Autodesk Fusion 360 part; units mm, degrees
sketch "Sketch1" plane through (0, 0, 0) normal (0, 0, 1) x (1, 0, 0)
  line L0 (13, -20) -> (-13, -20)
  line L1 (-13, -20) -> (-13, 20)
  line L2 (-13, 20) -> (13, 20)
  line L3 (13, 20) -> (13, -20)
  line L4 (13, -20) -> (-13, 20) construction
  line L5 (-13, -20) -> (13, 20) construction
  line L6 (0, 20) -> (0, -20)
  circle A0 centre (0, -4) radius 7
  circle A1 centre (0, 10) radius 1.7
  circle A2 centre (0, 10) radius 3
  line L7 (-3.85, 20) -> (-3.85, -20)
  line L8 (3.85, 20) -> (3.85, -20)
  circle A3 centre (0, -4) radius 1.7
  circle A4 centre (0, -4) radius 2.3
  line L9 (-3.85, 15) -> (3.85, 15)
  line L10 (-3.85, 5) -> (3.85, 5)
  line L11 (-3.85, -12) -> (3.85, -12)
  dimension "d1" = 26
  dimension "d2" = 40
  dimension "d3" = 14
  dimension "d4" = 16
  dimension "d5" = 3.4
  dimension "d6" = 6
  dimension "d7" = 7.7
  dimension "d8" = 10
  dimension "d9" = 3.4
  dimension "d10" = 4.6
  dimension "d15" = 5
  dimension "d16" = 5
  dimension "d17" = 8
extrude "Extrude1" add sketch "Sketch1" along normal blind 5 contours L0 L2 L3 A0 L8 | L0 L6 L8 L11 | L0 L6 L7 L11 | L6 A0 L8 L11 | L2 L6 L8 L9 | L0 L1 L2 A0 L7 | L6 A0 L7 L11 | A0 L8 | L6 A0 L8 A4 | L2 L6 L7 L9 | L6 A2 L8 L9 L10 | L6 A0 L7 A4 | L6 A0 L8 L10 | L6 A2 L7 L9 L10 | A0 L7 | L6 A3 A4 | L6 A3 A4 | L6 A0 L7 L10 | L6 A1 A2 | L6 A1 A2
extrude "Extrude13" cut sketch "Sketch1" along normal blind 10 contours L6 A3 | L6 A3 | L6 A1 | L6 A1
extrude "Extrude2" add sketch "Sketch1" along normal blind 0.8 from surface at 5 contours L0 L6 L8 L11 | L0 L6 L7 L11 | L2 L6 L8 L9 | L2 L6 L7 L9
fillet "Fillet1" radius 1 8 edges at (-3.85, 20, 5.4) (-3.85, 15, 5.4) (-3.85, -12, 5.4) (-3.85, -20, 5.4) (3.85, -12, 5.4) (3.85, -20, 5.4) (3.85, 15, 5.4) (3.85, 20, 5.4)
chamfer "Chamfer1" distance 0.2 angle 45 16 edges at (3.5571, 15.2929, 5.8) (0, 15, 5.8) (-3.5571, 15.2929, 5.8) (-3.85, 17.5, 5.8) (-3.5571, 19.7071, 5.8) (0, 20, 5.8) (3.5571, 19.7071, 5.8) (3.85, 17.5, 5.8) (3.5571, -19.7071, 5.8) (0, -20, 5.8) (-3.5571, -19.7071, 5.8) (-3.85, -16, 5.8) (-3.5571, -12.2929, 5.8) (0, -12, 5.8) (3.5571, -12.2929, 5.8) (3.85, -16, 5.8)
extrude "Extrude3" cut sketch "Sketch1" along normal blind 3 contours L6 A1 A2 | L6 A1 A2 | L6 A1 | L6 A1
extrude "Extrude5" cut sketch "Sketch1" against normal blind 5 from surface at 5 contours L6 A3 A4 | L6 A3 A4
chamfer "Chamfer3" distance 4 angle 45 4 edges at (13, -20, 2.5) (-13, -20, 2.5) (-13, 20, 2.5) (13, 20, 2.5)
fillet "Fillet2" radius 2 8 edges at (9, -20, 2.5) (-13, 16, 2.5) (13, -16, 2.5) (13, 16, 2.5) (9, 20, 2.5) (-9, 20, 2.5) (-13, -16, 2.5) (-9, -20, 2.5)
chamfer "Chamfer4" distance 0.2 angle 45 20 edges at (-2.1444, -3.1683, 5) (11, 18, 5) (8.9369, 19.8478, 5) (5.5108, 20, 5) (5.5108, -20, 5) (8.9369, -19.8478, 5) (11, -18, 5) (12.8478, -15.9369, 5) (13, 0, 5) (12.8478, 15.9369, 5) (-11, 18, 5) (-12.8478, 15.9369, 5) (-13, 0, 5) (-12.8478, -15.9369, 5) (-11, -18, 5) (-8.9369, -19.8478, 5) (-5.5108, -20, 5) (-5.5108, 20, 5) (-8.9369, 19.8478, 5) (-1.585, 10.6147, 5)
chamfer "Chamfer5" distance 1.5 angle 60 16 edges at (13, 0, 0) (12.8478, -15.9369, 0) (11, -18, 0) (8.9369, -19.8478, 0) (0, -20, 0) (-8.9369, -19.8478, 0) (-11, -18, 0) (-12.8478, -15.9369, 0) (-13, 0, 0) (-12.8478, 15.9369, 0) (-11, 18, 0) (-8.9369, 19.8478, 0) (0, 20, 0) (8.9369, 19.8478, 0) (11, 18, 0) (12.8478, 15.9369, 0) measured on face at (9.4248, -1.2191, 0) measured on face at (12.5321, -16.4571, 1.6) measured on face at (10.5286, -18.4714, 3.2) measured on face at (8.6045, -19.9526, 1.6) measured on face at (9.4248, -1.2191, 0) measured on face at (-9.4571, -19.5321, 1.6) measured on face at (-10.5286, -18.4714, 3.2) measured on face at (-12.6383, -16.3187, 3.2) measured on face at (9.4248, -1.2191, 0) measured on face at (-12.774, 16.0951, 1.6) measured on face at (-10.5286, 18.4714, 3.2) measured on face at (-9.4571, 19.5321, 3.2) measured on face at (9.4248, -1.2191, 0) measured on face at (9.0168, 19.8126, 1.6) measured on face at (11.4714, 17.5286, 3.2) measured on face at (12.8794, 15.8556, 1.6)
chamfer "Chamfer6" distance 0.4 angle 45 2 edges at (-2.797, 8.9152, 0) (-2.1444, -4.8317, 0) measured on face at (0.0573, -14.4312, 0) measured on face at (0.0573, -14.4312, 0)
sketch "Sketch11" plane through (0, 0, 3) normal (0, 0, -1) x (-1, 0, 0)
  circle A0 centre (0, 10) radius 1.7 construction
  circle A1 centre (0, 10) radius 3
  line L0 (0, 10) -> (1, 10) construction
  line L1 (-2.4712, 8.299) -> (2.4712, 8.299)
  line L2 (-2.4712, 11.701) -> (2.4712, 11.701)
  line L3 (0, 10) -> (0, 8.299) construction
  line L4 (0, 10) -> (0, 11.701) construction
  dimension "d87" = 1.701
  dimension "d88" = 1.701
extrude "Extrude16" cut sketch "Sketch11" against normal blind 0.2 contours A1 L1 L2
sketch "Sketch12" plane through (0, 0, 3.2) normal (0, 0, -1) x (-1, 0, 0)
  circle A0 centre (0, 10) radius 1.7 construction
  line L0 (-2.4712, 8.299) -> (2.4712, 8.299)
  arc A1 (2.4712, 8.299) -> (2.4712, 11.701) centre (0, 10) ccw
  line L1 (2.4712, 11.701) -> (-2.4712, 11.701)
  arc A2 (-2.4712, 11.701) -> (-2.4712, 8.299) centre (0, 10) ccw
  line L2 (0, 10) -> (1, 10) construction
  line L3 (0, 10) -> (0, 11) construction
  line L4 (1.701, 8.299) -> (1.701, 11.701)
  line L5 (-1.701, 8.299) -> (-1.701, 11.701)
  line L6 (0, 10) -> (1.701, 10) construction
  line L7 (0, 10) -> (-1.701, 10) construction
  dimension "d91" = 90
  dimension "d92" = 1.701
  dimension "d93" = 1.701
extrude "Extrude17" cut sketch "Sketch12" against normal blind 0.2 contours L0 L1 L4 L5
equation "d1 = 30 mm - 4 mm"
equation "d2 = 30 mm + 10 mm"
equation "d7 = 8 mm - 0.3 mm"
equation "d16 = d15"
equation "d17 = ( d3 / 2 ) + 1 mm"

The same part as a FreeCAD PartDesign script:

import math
import FreeCAD as App
import Part
import Sketcher

V = App.Vector
Q = App.Units.Quantity


def edges_at(feature, points):
    """Names of the edges that pass closest to the given points."""
    edges = feature.Shape.Edges
    near = lambda p: min(range(len(edges)), key=lambda i: edges[i].distToShape(Part.Vertex(*p))[0])
    return sorted({f"Edge{near(p) + 1}" for p in points})

doc = App.newDocument("Part")
body = doc.addObject("PartDesign::Body", "Body")

sketch1 = body.newObject("Sketcher::SketchObject", "Sketch")
sketch1.AttachmentSupport = (doc.getObject("XY_Plane"), [""])
sketch1.MapMode = "FlatFace"
sketch1.addGeometry(Part.LineSegment(V(13, -20, 0), V(13, 20, 0)), False)
sketch1.addGeometry(Part.LineSegment(V(13, 20, 0), V(-13, 20, 0)), False)
sketch1.addGeometry(Part.LineSegment(V(-13, 20, 0), V(-13, -20, 0)), False)
sketch1.addGeometry(Part.LineSegment(V(-13, -20, 0), V(13, -20, 0)), False)
sketch1.addGeometry(Part.Circle(V(0, 10, 0), V(0, 0, 1), 1.7), False)
sketch1.addGeometry(Part.Circle(V(0, -4, 0), V(0, 0, 1), 1.7), False)
sketch1.addConstraint(Sketcher.Constraint("Coincident", 0, 2, 1, 1))
sketch1.addConstraint(Sketcher.Constraint("Coincident", 1, 2, 2, 1))
sketch1.addConstraint(Sketcher.Constraint("Coincident", 2, 2, 3, 1))
sketch1.addConstraint(Sketcher.Constraint("Coincident", 3, 2, 0, 1))
sketch1.addConstraint(Sketcher.Constraint("Vertical", 0))
sketch1.addConstraint(Sketcher.Constraint("Horizontal", 1))
sketch1.addConstraint(Sketcher.Constraint("Vertical", 2))
sketch1.addConstraint(Sketcher.Constraint("Horizontal", 3))
sketch1.addConstraint(Sketcher.Constraint("Equal", 4, 5))
sketch1.addConstraint(Sketcher.Constraint("Symmetric", 0, 2, 2, 2, -1, 1))
sketch1.addConstraint(Sketcher.Constraint("PointOnObject", 4, 3, -2))
sketch1.addConstraint(Sketcher.Constraint("PointOnObject", 5, 3, -2))
sketch1.addConstraint(Sketcher.Constraint("Diameter", 4, Q("3.4 mm")))
sketch1.addConstraint(Sketcher.Constraint("DistanceX", 1, 2, 1, 1, Q("26 mm")))
sketch1.addConstraint(Sketcher.Constraint("DistanceY", 0, 1, 0, 2, Q("40 mm")))
sketch1.addConstraint(Sketcher.Constraint("DistanceY", -1, 1, 4, 3, Q("10 mm")))
sketch1.addConstraint(Sketcher.Constraint("DistanceY", 5, 3, 4, 3, Q("14 mm")))
pad1 = body.newObject("PartDesign::Pad", "Pad")
pad1.Profile = sketch1
pad1.Length = 5

sketch2 = body.newObject("Sketcher::SketchObject", "Sketch001")
sketch2.AttachmentSupport = (doc.getObject("XY_Plane"), [""])
sketch2.MapMode = "FlatFace"
sketch2.addGeometry(Part.Circle(V(0, -4, 0), V(0, 0, 1), 1.7), False)
sketch2.addGeometry(Part.Circle(V(0, 10, 0), V(0, 0, 1), 1.7), False)
sketch2.addConstraint(Sketcher.Constraint("Equal", 0, 1))
sketch2.addConstraint(Sketcher.Constraint("PointOnObject", 0, 3, -2))
sketch2.addConstraint(Sketcher.Constraint("PointOnObject", 1, 3, -2))
sketch2.addConstraint(Sketcher.Constraint("Diameter", 0, Q("3.4 mm")))
sketch2.addConstraint(Sketcher.Constraint("DistanceY", -1, 1, 1, 3, Q("10 mm")))
sketch2.addConstraint(Sketcher.Constraint("DistanceY", 0, 3, 1, 3, Q("14 mm")))
pocket1 = body.newObject("PartDesign::Pocket", "Pocket")
pocket1.Profile = sketch2
pocket1.Length = 10
pocket1.Reversed = True

sketch3 = body.newObject("Sketcher::SketchObject", "Sketch002")
sketch3.AttachmentSupport = (doc.getObject("XY_Plane"), [""])
sketch3.MapMode = "FlatFace"
sketch3.AttachmentOffset = App.Placement(V(0, 0, 5), App.Rotation())
sketch3.addGeometry(Part.LineSegment(V(3.85, -20, 0), V(3.85, -12, 0)), False)
sketch3.addGeometry(Part.LineSegment(V(3.85, -12, 0), V(-3.85, -12, 0)), False)
sketch3.addGeometry(Part.LineSegment(V(-3.85, -12, 0), V(-3.85, -20, 0)), False)
sketch3.addGeometry(Part.LineSegment(V(-3.85, -20, 0), V(3.85, -20, 0)), False)
sketch3.addGeometry(Part.LineSegment(V(3.85, 15, 0), V(3.85, 20, 0)), False)
sketch3.addGeometry(Part.LineSegment(V(3.85, 20, 0), V(-3.85, 20, 0)), False)
sketch3.addGeometry(Part.LineSegment(V(-3.85, 20, 0), V(-3.85, 15, 0)), False)
sketch3.addGeometry(Part.LineSegment(V(-3.85, 15, 0), V(3.85, 15, 0)), False)
sketch3.addConstraint(Sketcher.Constraint("Coincident", 0, 2, 1, 1))
sketch3.addConstraint(Sketcher.Constraint("Coincident", 1, 2, 2, 1))
sketch3.addConstraint(Sketcher.Constraint("Coincident", 2, 2, 3, 1))
sketch3.addConstraint(Sketcher.Constraint("Coincident", 3, 2, 0, 1))
sketch3.addConstraint(Sketcher.Constraint("Coincident", 4, 2, 5, 1))
sketch3.addConstraint(Sketcher.Constraint("Coincident", 5, 2, 6, 1))
sketch3.addConstraint(Sketcher.Constraint("Coincident", 6, 2, 7, 1))
sketch3.addConstraint(Sketcher.Constraint("Coincident", 7, 2, 4, 1))
sketch3.addConstraint(Sketcher.Constraint("Vertical", 0))
sketch3.addConstraint(Sketcher.Constraint("Horizontal", 1))
sketch3.addConstraint(Sketcher.Constraint("Vertical", 2))
sketch3.addConstraint(Sketcher.Constraint("Horizontal", 3))
sketch3.addConstraint(Sketcher.Constraint("Vertical", 4))
sketch3.addConstraint(Sketcher.Constraint("Horizontal", 5))
sketch3.addConstraint(Sketcher.Constraint("Vertical", 6))
sketch3.addConstraint(Sketcher.Constraint("Horizontal", 7))
sketch3.addConstraint(Sketcher.Constraint("Symmetric", 2, 2, 4, 2, -1, 1))
sketch3.addConstraint(Sketcher.Constraint("Vertical", 3, 2, 4, 2))
sketch3.addConstraint(Sketcher.Constraint("Vertical", 2, 2, 5, 2))
sketch3.addConstraint(Sketcher.Constraint("DistanceY", 0, 1, 0, 2, Q("8 mm")))
sketch3.addConstraint(Sketcher.Constraint("DistanceY", 4, 1, 4, 2, Q("5 mm")))
sketch3.addConstraint(Sketcher.Constraint("DistanceX", 1, 2, 1, 1, Q("7.7 mm")))
sketch3.addConstraint(Sketcher.Constraint("DistanceY", 3, 2, 4, 2, Q("40 mm")))
pad2 = body.newObject("PartDesign::Pad", "Pad001")
pad2.Profile = sketch3
pad2.Length = 0.8
doc.recompute()

fillet = body.newObject("PartDesign::Fillet", "Fillet")
fillet.Base = (pad2, edges_at(pad2, [
    (-3.85, 20, 5.4),
    (-3.85, 15, 5.4),
    (-3.85, -12, 5.4),
    (-3.85, -20, 5.4),
    (3.85, -12, 5.4),
    (3.85, -20, 5.4),
    (3.85, 15, 5.4),
    (3.85, 20, 5.4),
]))
fillet.Radius = 1
doc.recompute()

chamfer = body.newObject("PartDesign::Chamfer", "Chamfer")
chamfer.Base = (fillet, edges_at(fillet, [
    (3.557, 15.293, 5.8),
    (0, 15, 5.8),
    (-3.557, 15.293, 5.8),
    (-3.85, 17.5, 5.8),
    (-3.557, 19.707, 5.8),
    (0, 20, 5.8),
    (3.557, 19.707, 5.8),
    (3.85, 17.5, 5.8),
    (3.557, -19.707, 5.8),
    (0, -20, 5.8),
    (-3.557, -19.707, 5.8),
    (-3.85, -16, 5.8),
    (-3.557, -12.293, 5.8),
    (0, -12, 5.8),
    (3.557, -12.293, 5.8),
    (3.85, -16, 5.8),
]))
chamfer.Size = 0.2

sketch4 = body.newObject("Sketcher::SketchObject", "Sketch003")
sketch4.AttachmentSupport = (doc.getObject("XY_Plane"), [""])
sketch4.MapMode = "FlatFace"
sketch4.addGeometry(Part.Circle(V(0, 10, 0), V(0, 0, 1), 3), False)
sketch4.addConstraint(Sketcher.Constraint("PointOnObject", 0, 3, -2))
sketch4.addConstraint(Sketcher.Constraint("Diameter", 0, Q("6 mm")))
sketch4.addConstraint(Sketcher.Constraint("DistanceY", -1, 1, 0, 3, Q("10 mm")))
pocket2 = body.newObject("PartDesign::Pocket", "Pocket001")
pocket2.Profile = sketch4
pocket2.Length = 3
pocket2.Reversed = True

sketch5 = body.newObject("Sketcher::SketchObject", "Sketch004")
sketch5.AttachmentSupport = (doc.getObject("XY_Plane"), [""])
sketch5.MapMode = "FlatFace"
sketch5.AttachmentOffset = App.Placement(V(0, 0, 5), App.Rotation())
sketch5.addGeometry(Part.Circle(V(0, -4, 0), V(0, 0, 1), 2.3), False)
sketch5.addGeometry(Part.Circle(V(0, -4, 0), V(0, 0, 1), 1.7), False)
sketch5.addConstraint(Sketcher.Constraint("Coincident", 1, 3, 0, 3))
sketch5.addConstraint(Sketcher.Constraint("PointOnObject", 0, 3, -2))
sketch5.addConstraint(Sketcher.Constraint("Diameter", 0, Q("4.6 mm")))
sketch5.addConstraint(Sketcher.Constraint("Diameter", 1, Q("3.4 mm")))
sketch5.addConstraint(Sketcher.Constraint("DistanceY", 0, 3, -1, 1, Q("4 mm")))
pocket3 = body.newObject("PartDesign::Pocket", "Pocket002")
pocket3.Profile = sketch5
pocket3.Length = 5
doc.recompute()

chamfer2 = body.newObject("PartDesign::Chamfer", "Chamfer001")
chamfer2.Base = (pocket3, edges_at(pocket3, [
    (13, -20, 2.5),
    (-13, -20, 2.5),
    (-13, 20, 2.5),
    (13, 20, 2.5),
]))
chamfer2.Size = 4
doc.recompute()

fillet2 = body.newObject("PartDesign::Fillet", "Fillet001")
fillet2.Base = (chamfer2, edges_at(chamfer2, [
    (9, -20, 2.5),
    (-13, 16, 2.5),
    (13, -16, 2.5),
    (13, 16, 2.5),
    (9, 20, 2.5),
    (-9, 20, 2.5),
    (-13, -16, 2.5),
    (-9, -20, 2.5),
]))
fillet2.Radius = 2
doc.recompute()

chamfer3 = body.newObject("PartDesign::Chamfer", "Chamfer002")
chamfer3.Base = (fillet2, edges_at(fillet2, [
    (-2.144, -3.168, 5),
    (11, 18, 5),
    (8.937, 19.848, 5),
    (5.511, 20, 5),
    (5.511, -20, 5),
    (8.937, -19.848, 5),
    (11, -18, 5),
    (12.848, -15.937, 5),
    (13, 0, 5),
    (12.848, 15.937, 5),
    (-11, 18, 5),
    (-12.848, 15.937, 5),
    (-13, 0, 5),
    (-12.848, -15.937, 5),
    (-11, -18, 5),
    (-8.937, -19.848, 5),
    (-5.511, -20, 5),
    (-5.511, 20, 5),
    (-8.937, 19.848, 5),
    (-1.585, 10.615, 5),
]))
chamfer3.Size = 0.2
doc.recompute()

chamfer4 = body.newObject("PartDesign::Chamfer", "Chamfer003")
chamfer4.Base = (chamfer3, edges_at(chamfer3, [
    (13, 0, 0),
    (12.848, -15.937, 0),
    (11, -18, 0),
    (8.937, -19.848, 0),
    (0, -20, 0),
    (-8.937, -19.848, 0),
    (-11, -18, 0),
    (-12.848, -15.937, 0),
    (-13, 0, 0),
    (-12.848, 15.937, 0),
    (-11, 18, 0),
    (-8.937, 19.848, 0),
    (0, 20, 0),
    (8.937, 19.848, 0),
    (11, 18, 0),
    (12.848, 15.937, 0),
]))
chamfer4.ChamferType = "Distance and Angle"
chamfer4.Size = 1.5
chamfer4.Angle = 60
chamfer4.FlipDirection = True
doc.recompute()

chamfer5 = body.newObject("PartDesign::Chamfer", "Chamfer004")
chamfer5.Base = (chamfer4, edges_at(chamfer4, [(-2.797, 8.915, 0), (-2.144, -4.832, 0)]))
chamfer5.Size = 0.4

sketch6 = body.newObject("Sketcher::SketchObject", "Sketch005")
sketch6.AttachmentSupport = (doc.getObject("XY_Plane"), [""])
sketch6.MapMode = "FlatFace"
sketch6.AttachmentOffset = App.Placement(V(0, 0, 3), App.Rotation())
sketch6.addGeometry(Part.ArcOfCircle(Part.Circle(V(0, 10, 0), V(0, 0, 1), 3), math.radians(145.459214), math.radians(214.540786)), False)
sketch6.addGeometry(Part.LineSegment(V(-2.4712, 11.701, 0), V(2.4712, 11.701, 0)), False)
sketch6.addGeometry(Part.ArcOfCircle(Part.Circle(V(0, 10, 0), V(0, 0, 1), 3), math.radians(-34.540786), math.radians(34.540786)), False)
sketch6.addGeometry(Part.LineSegment(V(2.4712, 8.299, 0), V(-2.4712, 8.299, 0)), False)
sketch6.addConstraint(Sketcher.Constraint("Coincident", 0, 1, 1, 1))
sketch6.addConstraint(Sketcher.Constraint("Coincident", 1, 2, 2, 2))
sketch6.addConstraint(Sketcher.Constraint("Coincident", 2, 1, 3, 1))
sketch6.addConstraint(Sketcher.Constraint("Coincident", 3, 2, 0, 2))
sketch6.addConstraint(Sketcher.Constraint("Horizontal", 1))
sketch6.addConstraint(Sketcher.Constraint("Horizontal", 3))
sketch6.addConstraint(Sketcher.Constraint("Coincident", 2, 3, 0, 3))
sketch6.addConstraint(Sketcher.Constraint("Equal", 0, 2))
sketch6.addConstraint(Sketcher.Constraint("PointOnObject", 0, 3, -2))
sketch6.addConstraint(Sketcher.Constraint("Vertical", 1, 2, 2, 1))
sketch6.addConstraint(Sketcher.Constraint("Radius", 0, Q("3 mm")))
sketch6.addConstraint(Sketcher.Constraint("DistanceY", -1, 1, 0, 3, Q("10 mm")))
sketch6.addConstraint(Sketcher.Constraint("DistanceY", 0, 3, 0, 1, Q("1.701 mm")))
pocket4 = body.newObject("PartDesign::Pocket", "Pocket003")
pocket4.Profile = sketch6
pocket4.Length = 0.2
pocket4.Reversed = True

sketch7 = body.newObject("Sketcher::SketchObject", "Sketch006")
sketch7.AttachmentSupport = (doc.getObject("XY_Plane"), [""])
sketch7.MapMode = "FlatFace"
sketch7.AttachmentOffset = App.Placement(V(0, 0, 3.2), App.Rotation())
sketch7.addGeometry(Part.LineSegment(V(1.701, 11.701, 0), V(1.701, 8.299, 0)), False)
sketch7.addGeometry(Part.LineSegment(V(1.701, 8.299, 0), V(-1.701, 8.299, 0)), False)
sketch7.addGeometry(Part.LineSegment(V(-1.701, 8.299, 0), V(-1.701, 11.701, 0)), False)
sketch7.addGeometry(Part.LineSegment(V(-1.701, 11.701, 0), V(1.701, 11.701, 0)), False)
sketch7.addConstraint(Sketcher.Constraint("Coincident", 0, 2, 1, 1))
sketch7.addConstraint(Sketcher.Constraint("Coincident", 1, 2, 2, 1))
sketch7.addConstraint(Sketcher.Constraint("Coincident", 2, 2, 3, 1))
sketch7.addConstraint(Sketcher.Constraint("Coincident", 3, 2, 0, 1))
sketch7.addConstraint(Sketcher.Constraint("Vertical", 0))
sketch7.addConstraint(Sketcher.Constraint("Horizontal", 1))
sketch7.addConstraint(Sketcher.Constraint("Vertical", 2))
sketch7.addConstraint(Sketcher.Constraint("Horizontal", 3))
sketch7.addConstraint(Sketcher.Constraint("Equal", 3, 0))
sketch7.addConstraint(Sketcher.Constraint("DistanceX", -1, 1, 0, 2, Q("1.701 mm")))
sketch7.addConstraint(Sketcher.Constraint("DistanceX", 1, 2, -1, 1, Q("1.701 mm")))
sketch7.addConstraint(Sketcher.Constraint("DistanceY", -1, 1, 0, 2, Q("8.299 mm")))
pocket5 = body.newObject("PartDesign::Pocket", "Pocket004")
pocket5.Profile = sketch7
pocket5.Length = 0.2
pocket5.Reversed = True

doc.recompute()
